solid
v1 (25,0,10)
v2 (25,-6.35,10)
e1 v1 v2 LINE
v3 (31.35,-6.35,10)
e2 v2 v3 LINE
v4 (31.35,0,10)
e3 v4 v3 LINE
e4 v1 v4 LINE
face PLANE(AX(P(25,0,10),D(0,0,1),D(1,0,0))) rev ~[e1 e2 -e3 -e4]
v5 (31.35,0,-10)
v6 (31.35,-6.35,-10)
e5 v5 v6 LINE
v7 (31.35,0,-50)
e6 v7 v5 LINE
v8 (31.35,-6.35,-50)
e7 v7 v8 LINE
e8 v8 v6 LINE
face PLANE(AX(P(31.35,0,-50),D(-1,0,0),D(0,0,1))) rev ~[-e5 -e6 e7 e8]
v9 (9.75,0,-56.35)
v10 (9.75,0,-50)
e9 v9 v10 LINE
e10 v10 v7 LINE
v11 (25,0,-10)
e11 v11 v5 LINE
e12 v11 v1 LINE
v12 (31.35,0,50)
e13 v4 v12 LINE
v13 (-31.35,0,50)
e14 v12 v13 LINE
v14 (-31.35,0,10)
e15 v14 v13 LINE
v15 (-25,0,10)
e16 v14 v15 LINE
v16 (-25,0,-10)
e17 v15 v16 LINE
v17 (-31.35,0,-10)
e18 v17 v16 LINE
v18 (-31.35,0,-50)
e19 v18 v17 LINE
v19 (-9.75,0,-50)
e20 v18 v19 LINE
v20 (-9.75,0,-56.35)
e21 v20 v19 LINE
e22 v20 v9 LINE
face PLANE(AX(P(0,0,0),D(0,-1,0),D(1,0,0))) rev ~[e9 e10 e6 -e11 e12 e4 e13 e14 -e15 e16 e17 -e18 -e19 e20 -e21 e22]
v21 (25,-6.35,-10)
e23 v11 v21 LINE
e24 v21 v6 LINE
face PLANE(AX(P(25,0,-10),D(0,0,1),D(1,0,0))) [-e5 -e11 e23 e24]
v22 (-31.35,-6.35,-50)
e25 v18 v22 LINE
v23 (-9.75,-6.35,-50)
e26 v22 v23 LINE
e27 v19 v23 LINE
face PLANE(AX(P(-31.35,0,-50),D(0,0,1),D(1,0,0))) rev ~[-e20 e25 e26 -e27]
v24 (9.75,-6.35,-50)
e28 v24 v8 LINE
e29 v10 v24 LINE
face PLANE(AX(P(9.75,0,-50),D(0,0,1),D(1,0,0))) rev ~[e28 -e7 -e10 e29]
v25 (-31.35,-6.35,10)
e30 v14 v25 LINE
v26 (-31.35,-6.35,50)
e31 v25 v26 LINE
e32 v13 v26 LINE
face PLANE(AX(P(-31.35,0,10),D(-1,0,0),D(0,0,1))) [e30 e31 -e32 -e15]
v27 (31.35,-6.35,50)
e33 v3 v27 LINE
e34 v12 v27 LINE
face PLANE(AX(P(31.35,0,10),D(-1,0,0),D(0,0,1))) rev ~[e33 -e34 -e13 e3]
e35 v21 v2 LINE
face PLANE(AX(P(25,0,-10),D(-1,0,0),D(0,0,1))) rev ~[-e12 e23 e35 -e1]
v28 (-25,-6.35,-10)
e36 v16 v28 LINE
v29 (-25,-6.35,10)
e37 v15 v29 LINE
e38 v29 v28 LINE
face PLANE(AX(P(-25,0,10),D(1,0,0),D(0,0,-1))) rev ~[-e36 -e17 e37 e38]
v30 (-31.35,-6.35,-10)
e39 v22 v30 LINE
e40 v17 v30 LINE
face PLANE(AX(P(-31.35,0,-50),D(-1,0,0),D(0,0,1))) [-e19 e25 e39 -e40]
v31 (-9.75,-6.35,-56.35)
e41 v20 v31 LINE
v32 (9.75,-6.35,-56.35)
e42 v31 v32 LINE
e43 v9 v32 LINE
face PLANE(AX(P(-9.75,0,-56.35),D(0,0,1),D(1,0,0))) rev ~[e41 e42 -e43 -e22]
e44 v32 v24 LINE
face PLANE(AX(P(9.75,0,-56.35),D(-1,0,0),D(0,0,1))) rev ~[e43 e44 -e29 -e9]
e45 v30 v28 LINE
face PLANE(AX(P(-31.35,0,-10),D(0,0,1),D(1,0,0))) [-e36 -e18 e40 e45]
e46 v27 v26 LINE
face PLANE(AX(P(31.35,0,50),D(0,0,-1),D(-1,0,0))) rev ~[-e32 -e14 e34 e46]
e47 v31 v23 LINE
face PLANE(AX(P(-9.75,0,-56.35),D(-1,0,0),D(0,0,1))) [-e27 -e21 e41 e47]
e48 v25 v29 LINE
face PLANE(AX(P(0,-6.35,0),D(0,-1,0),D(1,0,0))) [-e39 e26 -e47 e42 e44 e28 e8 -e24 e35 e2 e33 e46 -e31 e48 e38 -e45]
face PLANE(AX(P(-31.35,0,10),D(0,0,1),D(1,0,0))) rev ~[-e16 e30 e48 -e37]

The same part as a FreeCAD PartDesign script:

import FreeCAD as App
import Part
import Sketcher

V = App.Vector


def add_polygon(sketch, points):
    """Adds a closed chain of lines whose ends are joined by coincident constraints."""
    first, n = sketch.GeometryCount, len(points)
    for a, b in zip(points, points[1:] + points[:1]):
        sketch.addGeometry(Part.LineSegment(App.Vector(*a, 0), App.Vector(*b, 0)), False)
    for i in range(n):
        sketch.addConstraint(Sketcher.Constraint("Coincident", first + i, 2, first + (i + 1) % n, 1))

doc = App.newDocument("Part")
body = doc.addObject("PartDesign::Body", "Body")

# Sketch on XZ plane
sketch1 = body.newObject("Sketcher::SketchObject", "Sketch")
sketch1.AttachmentSupport = (doc.getObject("XZ_Plane"), [""])
sketch1.MapMode = "FlatFace"
add_polygon(sketch1, [(-25, 10), (-25, -10), (-31.35, -10), (-31.35, -50), (-9.75, -50), (-9.75, -56.35), (9.75, -56.35), (9.75, -50), (31.35, -50), (31.35, -10), (25, -10), (25, 10), (31.35, 10), (31.35, 50), (-31.35, 50), (-31.35, 10)])  # lines 0-15
sketch1.addConstraint([
    Sketcher.Constraint("Vertical", 0),
    Sketcher.Constraint("Horizontal", 1),
    Sketcher.Constraint("Vertical", 2),
    Sketcher.Constraint("Horizontal", 3),
    Sketcher.Constraint("Vertical", 4),
    Sketcher.Constraint("Horizontal", 5),
    Sketcher.Constraint("Vertical", 6),
    Sketcher.Constraint("Horizontal", 7),
    Sketcher.Constraint("Vertical", 8),
    Sketcher.Constraint("Horizontal", 9),
    Sketcher.Constraint("Vertical", 10),
    Sketcher.Constraint("Horizontal", 11),
    Sketcher.Constraint("Vertical", 12),
    Sketcher.Constraint("Horizontal", 13),
    Sketcher.Constraint("Vertical", 14),
    Sketcher.Constraint("Horizontal", 15),
    Sketcher.Constraint("Symmetric", 0, 2, 10, 2, -1, 1),
    Sketcher.Constraint("Symmetric", 2, 2, 12, 2, -1, 1),
    Sketcher.Constraint("Symmetric", 7, 2, 13, 2, -1, 1),
    Sketcher.Constraint("Symmetric", 1, 2, 8, 2, -2),
    Sketcher.Constraint("Horizontal", 11, 2, 14, 2),
    Sketcher.Constraint("Equal", 3, 7),
    Sketcher.Constraint("Equal", 15, 4),
    Sketcher.Constraint("DistanceY", 0, 2, 0, 1, 20.0),
    Sketcher.Constraint("DistanceY", 2, 2, 2, 1, 40.0),
    Sketcher.Constraint("DistanceX", 3, 1, 3, 2, 21.6),
    Sketcher.Constraint("DistanceX", 5, 1, 5, 2, 19.5),
    Sketcher.Constraint("DistanceX", 0, 2, -1, 1, 25.0),
])
pad1 = body.newObject("PartDesign::Pad", "Pad")
pad1.Profile = sketch1
pad1.Length = 6.35

doc.recompute()
